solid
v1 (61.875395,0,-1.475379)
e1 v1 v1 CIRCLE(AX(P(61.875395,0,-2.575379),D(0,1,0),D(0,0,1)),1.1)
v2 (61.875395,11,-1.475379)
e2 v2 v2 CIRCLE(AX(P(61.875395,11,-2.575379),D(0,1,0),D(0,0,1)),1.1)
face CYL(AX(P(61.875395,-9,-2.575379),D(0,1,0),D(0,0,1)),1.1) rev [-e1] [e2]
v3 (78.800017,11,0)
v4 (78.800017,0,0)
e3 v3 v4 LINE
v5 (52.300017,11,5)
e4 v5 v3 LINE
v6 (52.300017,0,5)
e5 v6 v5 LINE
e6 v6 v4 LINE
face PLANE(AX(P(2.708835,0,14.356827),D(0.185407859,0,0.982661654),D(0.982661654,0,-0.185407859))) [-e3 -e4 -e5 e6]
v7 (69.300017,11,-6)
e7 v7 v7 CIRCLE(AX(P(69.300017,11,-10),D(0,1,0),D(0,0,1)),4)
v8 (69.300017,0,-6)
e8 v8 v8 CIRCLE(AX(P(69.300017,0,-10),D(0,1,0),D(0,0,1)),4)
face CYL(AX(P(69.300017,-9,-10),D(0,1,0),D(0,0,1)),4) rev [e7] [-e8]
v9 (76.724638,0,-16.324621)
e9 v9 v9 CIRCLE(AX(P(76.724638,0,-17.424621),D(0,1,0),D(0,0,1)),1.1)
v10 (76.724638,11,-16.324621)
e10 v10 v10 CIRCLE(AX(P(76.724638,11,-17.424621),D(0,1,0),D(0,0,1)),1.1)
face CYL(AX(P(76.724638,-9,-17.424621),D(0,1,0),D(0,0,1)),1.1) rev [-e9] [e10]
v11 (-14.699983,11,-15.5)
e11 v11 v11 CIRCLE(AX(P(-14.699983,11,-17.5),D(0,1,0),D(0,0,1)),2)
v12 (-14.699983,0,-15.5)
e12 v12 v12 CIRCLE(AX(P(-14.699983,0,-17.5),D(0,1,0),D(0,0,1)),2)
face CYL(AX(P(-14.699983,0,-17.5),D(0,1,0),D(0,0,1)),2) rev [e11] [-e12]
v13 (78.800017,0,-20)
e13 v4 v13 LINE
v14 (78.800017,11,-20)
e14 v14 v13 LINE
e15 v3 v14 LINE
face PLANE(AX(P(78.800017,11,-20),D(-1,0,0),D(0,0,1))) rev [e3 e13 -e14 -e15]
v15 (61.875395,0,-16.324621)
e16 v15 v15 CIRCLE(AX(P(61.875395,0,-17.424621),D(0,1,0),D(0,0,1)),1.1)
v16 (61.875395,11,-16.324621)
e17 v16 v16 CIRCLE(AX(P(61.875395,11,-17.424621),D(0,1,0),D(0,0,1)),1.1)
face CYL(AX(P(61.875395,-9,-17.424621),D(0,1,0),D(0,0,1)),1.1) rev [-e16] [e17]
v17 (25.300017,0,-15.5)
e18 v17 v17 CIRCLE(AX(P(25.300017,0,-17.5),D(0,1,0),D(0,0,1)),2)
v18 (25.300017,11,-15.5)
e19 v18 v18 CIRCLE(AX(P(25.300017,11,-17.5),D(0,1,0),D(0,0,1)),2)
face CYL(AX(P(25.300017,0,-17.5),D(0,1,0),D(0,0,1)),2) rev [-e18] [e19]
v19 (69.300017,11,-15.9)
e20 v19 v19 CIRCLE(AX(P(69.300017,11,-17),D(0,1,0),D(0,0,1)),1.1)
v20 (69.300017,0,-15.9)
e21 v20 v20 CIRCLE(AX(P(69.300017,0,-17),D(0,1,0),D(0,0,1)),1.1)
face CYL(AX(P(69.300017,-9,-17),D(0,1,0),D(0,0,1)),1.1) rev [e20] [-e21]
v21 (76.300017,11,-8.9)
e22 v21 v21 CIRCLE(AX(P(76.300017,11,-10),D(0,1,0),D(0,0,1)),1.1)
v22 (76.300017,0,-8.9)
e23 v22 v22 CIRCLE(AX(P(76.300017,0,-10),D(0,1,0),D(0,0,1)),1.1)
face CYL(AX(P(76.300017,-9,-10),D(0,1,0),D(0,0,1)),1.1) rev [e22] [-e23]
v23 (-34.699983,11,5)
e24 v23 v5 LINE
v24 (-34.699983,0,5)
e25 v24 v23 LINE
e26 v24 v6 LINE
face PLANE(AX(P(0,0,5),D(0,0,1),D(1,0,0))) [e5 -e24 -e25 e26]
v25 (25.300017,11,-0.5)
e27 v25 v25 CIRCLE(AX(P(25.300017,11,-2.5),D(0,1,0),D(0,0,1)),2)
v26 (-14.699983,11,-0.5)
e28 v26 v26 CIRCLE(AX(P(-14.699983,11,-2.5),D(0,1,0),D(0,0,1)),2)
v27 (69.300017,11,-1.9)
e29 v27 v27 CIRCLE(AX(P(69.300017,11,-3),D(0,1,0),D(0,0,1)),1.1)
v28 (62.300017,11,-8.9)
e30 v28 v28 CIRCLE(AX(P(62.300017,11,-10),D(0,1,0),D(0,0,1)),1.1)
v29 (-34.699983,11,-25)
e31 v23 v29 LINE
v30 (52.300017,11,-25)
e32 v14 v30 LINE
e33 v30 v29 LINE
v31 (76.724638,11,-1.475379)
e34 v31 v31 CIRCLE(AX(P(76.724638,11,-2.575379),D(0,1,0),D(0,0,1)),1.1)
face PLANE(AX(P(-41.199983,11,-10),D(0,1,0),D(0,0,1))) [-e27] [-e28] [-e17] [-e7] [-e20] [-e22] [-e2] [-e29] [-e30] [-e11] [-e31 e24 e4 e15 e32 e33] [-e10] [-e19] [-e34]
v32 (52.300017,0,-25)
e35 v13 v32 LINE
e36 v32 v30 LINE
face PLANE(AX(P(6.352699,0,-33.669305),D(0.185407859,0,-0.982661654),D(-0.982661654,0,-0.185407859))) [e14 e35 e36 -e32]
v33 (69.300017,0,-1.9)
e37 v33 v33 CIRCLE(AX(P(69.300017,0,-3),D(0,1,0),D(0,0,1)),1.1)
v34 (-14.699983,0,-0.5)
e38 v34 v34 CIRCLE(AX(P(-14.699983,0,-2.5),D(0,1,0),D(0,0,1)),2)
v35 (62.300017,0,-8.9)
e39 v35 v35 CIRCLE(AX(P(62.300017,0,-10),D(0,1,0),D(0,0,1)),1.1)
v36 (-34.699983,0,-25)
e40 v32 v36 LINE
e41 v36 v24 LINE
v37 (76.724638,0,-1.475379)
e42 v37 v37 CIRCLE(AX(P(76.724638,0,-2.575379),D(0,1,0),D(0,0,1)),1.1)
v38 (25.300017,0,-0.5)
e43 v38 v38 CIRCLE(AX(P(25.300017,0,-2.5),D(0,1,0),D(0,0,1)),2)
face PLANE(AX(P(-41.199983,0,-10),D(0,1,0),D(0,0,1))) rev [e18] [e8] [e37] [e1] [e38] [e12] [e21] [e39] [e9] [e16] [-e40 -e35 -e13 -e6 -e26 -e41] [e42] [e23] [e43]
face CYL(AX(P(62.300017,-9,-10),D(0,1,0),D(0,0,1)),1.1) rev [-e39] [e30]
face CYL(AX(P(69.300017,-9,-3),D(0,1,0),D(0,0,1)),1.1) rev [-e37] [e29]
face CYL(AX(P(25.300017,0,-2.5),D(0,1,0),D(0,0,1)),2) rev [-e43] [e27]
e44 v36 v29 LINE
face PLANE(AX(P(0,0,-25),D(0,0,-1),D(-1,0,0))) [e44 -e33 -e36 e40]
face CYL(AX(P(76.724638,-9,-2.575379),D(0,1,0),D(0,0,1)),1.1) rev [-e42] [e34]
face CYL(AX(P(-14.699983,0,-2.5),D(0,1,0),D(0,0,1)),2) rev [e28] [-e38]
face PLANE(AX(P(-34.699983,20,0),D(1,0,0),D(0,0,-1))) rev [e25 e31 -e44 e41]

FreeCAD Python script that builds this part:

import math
import FreeCAD as App
import Part
import Sketcher
Q = App.Units.Quantity

doc = App.newDocument("Part")
body = doc.addObject("PartDesign::Body", "Body")

# Sketch on XZ plane
sketch1 = body.newObject("Sketcher::SketchObject", "Sketch")
sketch1.AttachmentSupport = (doc.getObject("XZ_Plane"), [""])
sketch1.MapMode = "FlatFace"
sketch1.addGeometry([
    Part.LineSegment(App.Vector(79, -20, 0), App.Vector(-41, -20, 0)),
    Part.ArcOfCircle(Part.Circle(App.Vector(-41, -10, 0), App.Vector(0, 0, 1), 10), math.radians(90), math.radians(270)),
    Part.LineSegment(App.Vector(-41, 0, 0), App.Vector(79, 0, 0)),
    Part.LineSegment(App.Vector(79, 0, 0), App.Vector(79, -20, 0)),
], False)
sketch1.addConstraint([
    Sketcher.Constraint("Tangent", 0, 2, 1, 2),
    Sketcher.Constraint("Tangent", 1, 1, 2, 1),
    Sketcher.Constraint("Coincident", 2, 2, 3, 1),
    Sketcher.Constraint("Coincident", 3, 2, 0, 1),
    Sketcher.Constraint("Horizontal", 0),
    Sketcher.Constraint("Horizontal", 2),
    Sketcher.Constraint("Vertical", 3),
    Sketcher.Constraint("PointOnObject", 1, 1, -1),
    Sketcher.Constraint("Radius", 1, Q("10 mm")),
    Sketcher.Constraint("DistanceX", 0, 2, 0, 1, Q("120 mm")),
    Sketcher.Constraint("DistanceX", 1, 3, -1, 1, Q("41.199983 mm")),
])
pad1 = body.newObject("PartDesign::Pad", "Pad")
pad1.Profile = sketch1
pad1.Length = 11
pad1.Reversed = True

# Sketch on XZ plane
sketch2 = body.newObject("Sketcher::SketchObject", "Sketch001")
sketch2.AttachmentSupport = (doc.getObject("XZ_Plane"), [""])
sketch2.MapMode = "FlatFace"
sketch2.AttachmentOffset = App.Placement(App.Vector(0, 0, -11), App.Rotation())
sketch2.addGeometry([
    Part.Circle(App.Vector(-48.2, -10, 0), App.Vector(0, 0, 1), 1.5),  # 0
    Part.ArcOfCircle(Part.Circle(App.Vector(-41.2, -17, 0), App.Vector(0, 0, 1), 1.5), math.radians(-90), math.radians(0)),  # 1
    Part.ArcOfCircle(Part.Circle(App.Vector(-41.2, -17, 0), App.Vector(0, 0, 1), 1.5), math.radians(90), math.radians(270)),  # 2
    Part.ArcOfCircle(Part.Circle(App.Vector(-41.2, -17, 0), App.Vector(0, 0, 1), 1.5), math.radians(0), math.radians(90)),  # 3
    Part.ArcOfCircle(Part.Circle(App.Vector(-41.2, -3, 0), App.Vector(0, 0, 1), 1.5), math.radians(-90), math.radians(0)),  # 4
    Part.ArcOfCircle(Part.Circle(App.Vector(-41.2, -3, 0), App.Vector(0, 0, 1), 1.5), math.radians(90), math.radians(270)),  # 5
    Part.ArcOfCircle(Part.Circle(App.Vector(-41.2, -3, 0), App.Vector(0, 0, 1), 1.5), math.radians(0), math.radians(90)),  # 6
    Part.Circle(App.Vector(-41.2, -10, 0), App.Vector(0, 0, 1), 4),  # 7
], False)
sketch2.addConstraint([
    Sketcher.Constraint("Tangent", 1, 1, 2, 2),
    Sketcher.Constraint("Tangent", 2, 1, 3, 2),
    Sketcher.Constraint("Tangent", 3, 1, 1, 2),
    Sketcher.Constraint("Tangent", 4, 1, 5, 2),
    Sketcher.Constraint("Tangent", 5, 1, 6, 2),
    Sketcher.Constraint("Tangent", 6, 1, 4, 2),
    Sketcher.Constraint("Equal", 0, 1),
    Sketcher.Constraint("Equal", 3, 4),
    Sketcher.Constraint("Horizontal", 0, 3, 7, 3),
    Sketcher.Constraint("Horizontal", 2, 3, 3, 1),
    Sketcher.Constraint("Horizontal", 5, 3, 6, 1),
    Sketcher.Constraint("Vertical", 3, 3, 4, 3),
    Sketcher.Constraint("Vertical", 6, 3, 7, 3),
    Sketcher.Constraint("Vertical", 7, 3, 1, 1),
    Sketcher.Constraint("Vertical", 1, 1, 2, 1),
    Sketcher.Constraint("Vertical", 2, 1, 4, 1),
    Sketcher.Constraint("Vertical", 4, 1, 5, 1),
    Sketcher.Constraint("Diameter", 0, Q("3 mm")),
    Sketcher.Constraint("Diameter", 7, Q("8 mm")),
    Sketcher.Constraint("DistanceY", 0, 3, -1, 1, Q("10 mm")),
    Sketcher.Constraint("DistanceY", 1, 3, -1, 1, Q("17 mm")),
    Sketcher.Constraint("DistanceY", 4, 3, -1, 1, Q("3 mm")),
    Sketcher.Constraint("DistanceX", 0, 3, 1, 3, Q("7 mm")),
    Sketcher.Constraint("DistanceX", 0, 3, -1, 1, Q("48.199983 mm")),
])
pocket1 = body.newObject("PartDesign::Pocket", "Pocket")
pocket1.Profile = sketch2
pocket1.Length = 10
pocket1.Reversed = True

# Sketch on XZ plane
sketch3 = body.newObject("Sketcher::SketchObject", "Sketch002")
sketch3.AttachmentSupport = (doc.getObject("XZ_Plane"), [""])
sketch3.MapMode = "FlatFace"
sketch3.AttachmentOffset = App.Placement(App.Vector(0, 0, -11), App.Rotation())
sketch3.addGeometry([
    Part.Circle(App.Vector(69.3, -10, 0), App.Vector(0, 0, 1), 4),  # 0
    Part.Circle(App.Vector(76.7, -17.4, 0), App.Vector(0, 0, 1), 1.1),  # 1
    Part.Circle(App.Vector(62.3, -10, 0), App.Vector(0, 0, 1), 1.1),  # 2
    Part.Circle(App.Vector(76.7, -2.6, 0), App.Vector(0, 0, 1), 1.1),  # 3
    Part.Circle(App.Vector(61.9, -2.6, 0), App.Vector(0, 0, 1), 1.1),  # 4
    Part.Circle(App.Vector(61.9, -17.4, 0), App.Vector(0, 0, 1), 1.1),  # 5
    Part.Circle(App.Vector(69.3, -17, 0), App.Vector(0, 0, 1), 1.1),  # 6
    Part.Circle(App.Vector(76.3, -10, 0), App.Vector(0, 0, 1), 1.1),  # 7
    Part.Circle(App.Vector(69.3, -3, 0), App.Vector(0, 0, 1), 1.1),  # 8
], False)
sketch3.addConstraint([
    Sketcher.Constraint("Equal", 1, 2),
    Sketcher.Constraint("Equal", 2, 3),
    Sketcher.Constraint("Equal", 3, 4),
    Sketcher.Constraint("Equal", 4, 5),
    Sketcher.Constraint("Equal", 5, 6),
    Sketcher.Constraint("Equal", 6, 7),
    Sketcher.Constraint("Equal", 7, 8),
    Sketcher.Constraint("Horizontal", 0, 3, 2, 3),
    Sketcher.Constraint("Horizontal", 3, 3, 4, 3),
    Sketcher.Constraint("Horizontal", 1, 3, 5, 3),
    Sketcher.Constraint("Horizontal", 2, 3, 7, 3),
    Sketcher.Constraint("Vertical", 1, 3, 3, 3),
    Sketcher.Constraint("Vertical", 4, 3, 5, 3),
    Sketcher.Constraint("Vertical", 0, 3, 6, 3),
    Sketcher.Constraint("Vertical", 6, 3, 8, 3),
    Sketcher.Constraint("Diameter", 0, Q("8 mm")),
    Sketcher.Constraint("Diameter", 1, Q("2.2 mm")),
    Sketcher.Constraint("DistanceY", 0, 3, -1, 1, Q("10 mm")),
    Sketcher.Constraint("DistanceY", 6, 3, -1, 1, Q("17 mm")),
    Sketcher.Constraint("DistanceY", 8, 3, -1, 1, Q("3 mm")),
    Sketcher.Constraint("DistanceX", 2, 3, 0, 3, Q("7 mm")),
    Sketcher.Constraint("DistanceX", 0, 3, 7, 3, Q("7 mm")),
    Sketcher.Constraint("DistanceY", 1, 3, -1, 1, Q("17.424621 mm")),
    Sketcher.Constraint("DistanceY", 3, 3, -1, 1, Q("2.575379 mm")),
    Sketcher.Constraint("DistanceX", 0, 3, 1, 3, Q("7.424621 mm")),
    Sketcher.Constraint("DistanceX", 4, 3, 2, 3, Q("0.424621 mm")),
    Sketcher.Constraint("DistanceX", -1, 1, 0, 3, Q("69.300017 mm")),
])
pocket2 = body.newObject("PartDesign::Pocket", "Pocket001")
pocket2.Profile = sketch3
pocket2.Length = 20
pocket2.Reversed = True

# Sketch on XZ plane
sketch4 = body.newObject("Sketcher::SketchObject", "Sketch003")
sketch4.AttachmentSupport = (doc.getObject("XZ_Plane"), [""])
sketch4.MapMode = "FlatFace"
sketch4.addGeometry([
    Part.LineSegment(App.Vector(-53, 0, 0), App.Vector(-53, -20, 0)),
    Part.LineSegment(App.Vector(-53, -20, 0), App.Vector(-35, -20, 0)),
    Part.LineSegment(App.Vector(-35, -20, 0), App.Vector(-35, 0, 0)),
    Part.LineSegment(App.Vector(-35, 0, 0), App.Vector(-53, 0, 0)),
], False)
sketch4.addConstraint([
    Sketcher.Constraint("Coincident", 0, 2, 1, 1),
    Sketcher.Constraint("Coincident", 1, 2, 2, 1),
    Sketcher.Constraint("Coincident", 2, 2, 3, 1),
    Sketcher.Constraint("Coincident", 3, 2, 0, 1),
    Sketcher.Constraint("Vertical", 0),
    Sketcher.Constraint("Horizontal", 1),
    Sketcher.Constraint("Vertical", 2),
    Sketcher.Constraint("Horizontal", 3),
    Sketcher.Constraint("PointOnObject", 2, 2, -1),
    Sketcher.Constraint("DistanceY", 0, 2, 0, 1, Q("20 mm")),
    Sketcher.Constraint("DistanceX", 1, 1, 1, 2, Q("18.664238 mm")),
    Sketcher.Constraint("DistanceX", 0, 2, -1, 1, Q("53.364222 mm")),
])
pocket3 = body.newObject("PartDesign::Pocket", "Pocket002")
pocket3.Profile = sketch4
pocket3.Length = 20

# Sketch on XZ plane
sketch5 = body.newObject("Sketcher::SketchObject", "Sketch004")
sketch5.AttachmentSupport = (doc.getObject("XZ_Plane"), [""])
sketch5.MapMode = "FlatFace"
sketch5.AttachmentOffset = App.Placement(App.Vector(0, 0, -11), App.Rotation())
sketch5.addGeometry([
    Part.LineSegment(App.Vector(79, -20, 0), App.Vector(52, -25, 0)),  # 0
    Part.LineSegment(App.Vector(52, -25, 0), App.Vector(-35, -25, 0)),  # 1
    Part.LineSegment(App.Vector(-35, -25, 0), App.Vector(-35, -20, 0)),  # 2
    Part.LineSegment(App.Vector(-35, -20, 0), App.Vector(79, -20, 0)),  # 3
    Part.LineSegment(App.Vector(79, 0, 0), App.Vector(-35, 0, 0)),  # 4
    Part.LineSegment(App.Vector(-35, 0, 0), App.Vector(-35, 5, 0)),  # 5
    Part.LineSegment(App.Vector(-35, 5, 0), App.Vector(52, 5, 0)),  # 6
    Part.LineSegment(App.Vector(52, 5, 0), App.Vector(79, 0, 0)),  # 7
], False)
sketch5.addConstraint([
    Sketcher.Constraint("Coincident", 0, 2, 1, 1),
    Sketcher.Constraint("Coincident", 1, 2, 2, 1),
    Sketcher.Constraint("Coincident", 2, 2, 3, 1),
    Sketcher.Constraint("Coincident", 3, 2, 0, 1),
    Sketcher.Constraint("Coincident", 4, 2, 5, 1),
    Sketcher.Constraint("Coincident", 5, 2, 6, 1),
    Sketcher.Constraint("Coincident", 6, 2, 7, 1),
    Sketcher.Constraint("Coincident", 7, 2, 4, 1),
    Sketcher.Constraint("Horizontal", 1),
    Sketcher.Constraint("Vertical", 2),
    Sketcher.Constraint("Horizontal", 3),
    Sketcher.Constraint("Horizontal", 4),
    Sketcher.Constraint("Vertical", 5),
    Sketcher.Constraint("Horizontal", 6),
    Sketcher.Constraint("PointOnObject", 4, 2, -1),
    Sketcher.Constraint("Vertical", 2, 2, 4, 2),
    Sketcher.Constraint("Vertical", 0, 2, 6, 2),
    Sketcher.Constraint("Vertical", 3, 2, 7, 2),
    Sketcher.Constraint("Equal", 2, 5),
    Sketcher.Constraint("DistanceX", 1, 2, 1, 1, Q("87 mm")),
    Sketcher.Constraint("DistanceY", 2, 1, 2, 2, Q("5 mm")),
    Sketcher.Constraint("DistanceX", 3, 1, 3, 2, Q("113.5 mm")),
    Sketcher.Constraint("DistanceY", 0, 2, -1, 1, Q("25 mm")),
    Sketcher.Constraint("DistanceX", -1, 1, 0, 2, Q("52.300017 mm")),
])
pad2 = body.newObject("PartDesign::Pad", "Pad001")
pad2.Profile = sketch5
pad2.Length = 11

# Sketch on XZ plane
sketch6 = body.newObject("Sketcher::SketchObject", "Sketch005")
sketch6.AttachmentSupport = (doc.getObject("XZ_Plane"), [""])
sketch6.MapMode = "FlatFace"
sketch6.AttachmentOffset = App.Placement(App.Vector(0, 0, -11), App.Rotation())
sketch6.addGeometry([
    Part.ArcOfCircle(Part.Circle(App.Vector(25.3, -17.5, 0), App.Vector(0, 0, 1), 2), math.radians(0), math.radians(90)),  # 0
    Part.ArcOfCircle(Part.Circle(App.Vector(25.3, -17.5, 0), App.Vector(0, 0, 1), 2), math.radians(180), math.radians(360)),  # 1
    Part.ArcOfCircle(Part.Circle(App.Vector(25.3, -17.5, 0), App.Vector(0, 0, 1), 2), math.radians(90), math.radians(180)),  # 2
    Part.ArcOfCircle(Part.Circle(App.Vector(25.3, -2.5, 0), App.Vector(0, 0, 1), 2), math.radians(-90), math.radians(0)),  # 3
    Part.ArcOfCircle(Part.Circle(App.Vector(25.3, -2.5, 0), App.Vector(0, 0, 1), 2), math.radians(-180), math.radians(-90)),  # 4
    Part.ArcOfCircle(Part.Circle(App.Vector(25.3, -2.5, 0), App.Vector(0, 0, 1), 2), math.radians(0), math.radians(180)),  # 5
    Part.ArcOfCircle(Part.Circle(App.Vector(-14.7, -17.5, 0), App.Vector(0, 0, 1), 2), math.radians(0), math.radians(90)),  # 6
    Part.ArcOfCircle(Part.Circle(App.Vector(-14.7, -17.5, 0), App.Vector(0, 0, 1), 2), math.radians(90), math.radians(360)),  # 7
    Part.ArcOfCircle(Part.Circle(App.Vector(-14.7, -2.5, 0), App.Vector(0, 0, 1), 2), math.radians(0), math.radians(270)),  # 8
    Part.ArcOfCircle(Part.Circle(App.Vector(-14.7, -2.5, 0), App.Vector(0, 0, 1), 2), math.radians(-90), math.radians(0)),  # 9
], False)
sketch6.addConstraint([
    Sketcher.Constraint("Tangent", 0, 1, 1, 2),
    Sketcher.Constraint("Tangent", 1, 1, 2, 2),
    Sketcher.Constraint("Tangent", 2, 1, 0, 2),
    Sketcher.Constraint("Tangent", 3, 1, 4, 2),
    Sketcher.Constraint("Tangent", 4, 1, 5, 2),
    Sketcher.Constraint("Tangent", 5, 1, 3, 2),
    Sketcher.Constraint("Tangent", 6, 1, 7, 2),
    Sketcher.Constraint("Coincident", 7, 1, 6, 2),
    Sketcher.Constraint("Tangent", 8, 1, 9, 2),
    Sketcher.Constraint("Coincident", 9, 1, 8, 2),
    Sketcher.Constraint("Equal", 2, 3),
    Sketcher.Constraint("Equal", 5, 6),
    Sketcher.Constraint("Equal", 7, 8),
    Sketcher.Constraint("Horizontal", 2, 3, 6, 3),
    Sketcher.Constraint("Horizontal", 5, 3, 8, 3),
    Sketcher.Constraint("Horizontal", 7, 3, 0, 1),
    Sketcher.Constraint("Horizontal", 0, 1, 1, 1),
    Sketcher.Constraint("Horizontal", 9, 3, 4, 1),
    Sketcher.Constraint("Horizontal", 4, 1, 5, 1),
    Sketcher.Constraint("Horizontal", 1, 1, 6, 1),
    Sketcher.Constraint("Horizontal", 5, 1, 8, 1),
    Sketcher.Constraint("Vertical", 2, 3, 3, 3),
    Sketcher.Constraint("Vertical", 7, 3, 8, 3),
    Sketcher.Constraint("Vertical", 5, 3, 2, 1),
    Sketcher.Constraint("Vertical", 2, 1, 3, 1),
    Sketcher.Constraint("Vertical", 9, 3, 7, 1),
    Sketcher.Constraint("Vertical", 7, 1, 9, 1),
    Sketcher.Constraint("Radius", 0, Q("2 mm")),
    Sketcher.Constraint("DistanceY", 1, 3, 3, 3, Q("15 mm")),
    Sketcher.Constraint("DistanceX", 6, 3, 0, 3, Q("40 mm")),
    Sketcher.Constraint("DistanceY", 0, 3, -1, 1, Q("17.5 mm")),
    Sketcher.Constraint("DistanceX", -1, 1, 0, 3, Q("25.300017 mm")),
])
pocket4 = body.newObject("PartDesign::Pocket", "Pocket003")
pocket4.Profile = sketch6
pocket4.Length = 11
pocket4.Reversed = True

doc.recompute()
